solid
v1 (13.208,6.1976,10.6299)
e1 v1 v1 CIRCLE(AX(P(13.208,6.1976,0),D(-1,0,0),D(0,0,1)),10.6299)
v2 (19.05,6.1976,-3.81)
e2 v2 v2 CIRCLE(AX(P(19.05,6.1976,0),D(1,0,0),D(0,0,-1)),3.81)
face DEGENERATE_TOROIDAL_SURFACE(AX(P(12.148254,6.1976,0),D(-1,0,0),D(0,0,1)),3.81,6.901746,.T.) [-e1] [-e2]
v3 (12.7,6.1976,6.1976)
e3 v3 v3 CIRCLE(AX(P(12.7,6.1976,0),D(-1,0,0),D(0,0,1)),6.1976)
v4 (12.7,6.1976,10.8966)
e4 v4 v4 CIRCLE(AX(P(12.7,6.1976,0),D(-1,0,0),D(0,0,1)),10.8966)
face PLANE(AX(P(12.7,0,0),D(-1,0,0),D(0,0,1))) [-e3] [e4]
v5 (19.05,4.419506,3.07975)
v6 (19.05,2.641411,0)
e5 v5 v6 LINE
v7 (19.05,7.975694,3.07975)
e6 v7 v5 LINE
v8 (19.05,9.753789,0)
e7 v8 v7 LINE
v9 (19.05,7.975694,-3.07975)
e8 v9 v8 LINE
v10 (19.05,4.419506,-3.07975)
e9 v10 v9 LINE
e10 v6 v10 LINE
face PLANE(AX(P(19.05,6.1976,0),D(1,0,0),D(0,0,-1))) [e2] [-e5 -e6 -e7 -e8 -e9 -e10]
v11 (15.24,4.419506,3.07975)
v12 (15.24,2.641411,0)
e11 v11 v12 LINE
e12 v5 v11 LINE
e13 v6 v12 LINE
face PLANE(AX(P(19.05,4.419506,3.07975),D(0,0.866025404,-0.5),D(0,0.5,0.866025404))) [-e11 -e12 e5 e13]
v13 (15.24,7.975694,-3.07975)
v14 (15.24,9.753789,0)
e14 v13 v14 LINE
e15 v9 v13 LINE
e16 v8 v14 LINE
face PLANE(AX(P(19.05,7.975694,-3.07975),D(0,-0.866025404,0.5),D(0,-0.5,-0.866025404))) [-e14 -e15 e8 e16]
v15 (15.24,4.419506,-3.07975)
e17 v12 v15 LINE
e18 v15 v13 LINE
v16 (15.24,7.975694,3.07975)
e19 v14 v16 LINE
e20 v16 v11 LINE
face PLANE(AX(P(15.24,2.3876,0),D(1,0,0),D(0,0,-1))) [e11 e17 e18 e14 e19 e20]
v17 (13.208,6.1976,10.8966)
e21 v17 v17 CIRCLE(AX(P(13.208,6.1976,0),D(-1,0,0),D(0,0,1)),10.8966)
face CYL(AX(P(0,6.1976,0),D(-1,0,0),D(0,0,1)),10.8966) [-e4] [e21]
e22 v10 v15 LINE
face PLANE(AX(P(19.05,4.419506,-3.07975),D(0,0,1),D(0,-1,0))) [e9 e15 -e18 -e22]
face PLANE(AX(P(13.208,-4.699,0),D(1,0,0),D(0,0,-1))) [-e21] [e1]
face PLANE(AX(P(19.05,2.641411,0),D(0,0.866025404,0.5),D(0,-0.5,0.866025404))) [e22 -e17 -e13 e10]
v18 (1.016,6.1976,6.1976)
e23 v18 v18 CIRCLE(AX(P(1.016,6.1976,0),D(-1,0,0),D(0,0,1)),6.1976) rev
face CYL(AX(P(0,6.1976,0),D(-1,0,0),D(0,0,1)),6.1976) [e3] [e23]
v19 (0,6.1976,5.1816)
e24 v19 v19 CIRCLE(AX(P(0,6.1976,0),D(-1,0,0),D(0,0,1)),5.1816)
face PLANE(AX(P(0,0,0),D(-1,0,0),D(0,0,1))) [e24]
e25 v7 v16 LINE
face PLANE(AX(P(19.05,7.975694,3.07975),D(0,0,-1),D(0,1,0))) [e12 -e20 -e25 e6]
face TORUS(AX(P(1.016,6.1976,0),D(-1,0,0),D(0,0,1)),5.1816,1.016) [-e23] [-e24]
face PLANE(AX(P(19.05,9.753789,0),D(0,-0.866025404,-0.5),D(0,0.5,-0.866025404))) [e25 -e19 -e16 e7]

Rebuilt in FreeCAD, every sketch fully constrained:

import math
import FreeCAD as App
import Part
import Sketcher

V = App.Vector
Q = App.Units.Quantity


def edges_at(feature, points):
    """Names of the edges that pass closest to the given points."""
    edges = feature.Shape.Edges
    near = lambda p: min(range(len(edges)), key=lambda i: edges[i].distToShape(Part.Vertex(*p))[0])
    return sorted({f"Edge{near(p) + 1}" for p in points})


def add_polygon(sketch, points):
    """Adds a closed chain of lines whose ends are joined by coincident constraints."""
    first, n = sketch.GeometryCount, len(points)
    for a, b in zip(points, points[1:] + points[:1]):
        sketch.addGeometry(Part.LineSegment(App.Vector(*a, 0), App.Vector(*b, 0)), False)
    for i in range(n):
        sketch.addConstraint(Sketcher.Constraint("Coincident", first + i, 2, first + (i + 1) % n, 1))

doc = App.newDocument("Part")
params = doc.addObject("Spreadsheet::Sheet", "Params")
for row, (alias, value) in enumerate([
    ("sketch1_width", "0.5 in"),
    ("sketch1_width2", "0.6 in"),
    ("sketch1_width3", "0.02 in"),
    ("sketch1_width4", "0.15 in"),
    ("sketch1_height", "0.244 in"),
    ("revolution_angle", "360 deg"),
    ("sketch2_diameter", "0.3 in"),
    ("pad1_length", "0.15 in"),
    ("fillet_radius", "0.04 in"),
], start=1):
    params.set(f"A{row}", alias)
    params.set(f"B{row}", "=" + value)
    params.setAlias(f"B{row}", alias)

body = doc.addObject("PartDesign::Body", "Body")

# Sketch on XY plane
sketch1 = body.newObject("Sketcher::SketchObject", "Sketch")
sketch1.AttachmentSupport = (doc.getObject("XY_Plane"), [""])
sketch1.MapMode = "FlatFace"
sketch1.addGeometry([
    Part.LineSegment(V(0, 6.1976, 0), V(0, 0, 0)),  # 0
    Part.LineSegment(V(0, 0, 0), V(12.7, 0, 0)),  # 1
    Part.LineSegment(V(12.7, 0, 0), V(12.7, -4.699, 0)),  # 2
    Part.LineSegment(V(12.7, -4.699, 0), V(13.208, -4.699, 0)),  # 3
    Part.LineSegment(V(13.208, -4.699, 0), V(13.208, -4.4323, 0)),  # 4
    Part.ArcOfCircle(Part.Circle(V(12.148254, 2.3876, 0), V(0, 0, 1), 6.901746), math.radians(-81.167433), math.radians(0)),  # 5
    Part.LineSegment(V(19.05, 2.3876, 0), V(15.24, 2.3876, 0)),  # 6
    Part.LineSegment(V(15.24, 2.3876, 0), V(15.24, 6.1976, 0)),  # 7
    Part.LineSegment(V(15.24, 6.1976, 0), V(0, 6.1976, 0)),  # 8
], False)
sketch1.addGeometry(Part.LineSegment(V(0, 6.1976, 0), V(19.05, 6.1976, 0)), True)  # axis
sketch1.addConstraint([
    Sketcher.Constraint("Coincident", 0, 2, 1, 1),
    Sketcher.Constraint("Coincident", 1, 2, 2, 1),
    Sketcher.Constraint("Coincident", 2, 2, 3, 1),
    Sketcher.Constraint("Coincident", 3, 2, 4, 1),
    Sketcher.Constraint("Coincident", 4, 2, 5, 1),
    Sketcher.Constraint("Coincident", 5, 2, 6, 1),
    Sketcher.Constraint("Coincident", 6, 2, 7, 1),
    Sketcher.Constraint("Coincident", 7, 2, 8, 1),
    Sketcher.Constraint("Coincident", 8, 2, 0, 1),
    Sketcher.Constraint("Vertical", 0),
    Sketcher.Constraint("Horizontal", 1),
    Sketcher.Constraint("Vertical", 2),
    Sketcher.Constraint("Horizontal", 3),
    Sketcher.Constraint("Vertical", 4),
    Sketcher.Constraint("Horizontal", 6),
    Sketcher.Constraint("Vertical", 7),
    Sketcher.Constraint("Horizontal", 8),
    Sketcher.Constraint("Horizontal", 9),
    Sketcher.Constraint("Coincident", 0, 2, -1, 1),
    Sketcher.Constraint("Coincident", 9, 1, 8, 2),
    Sketcher.Constraint("Vertical", 5, 2, 9, 2),
    Sketcher.Constraint("Equal", 6, 7),
    Sketcher.Constraint("DistanceX", 1, 1, 1, 2, Q("0.5 in")),
    Sketcher.Constraint("DistanceX", 8, 2, 8, 1, Q("0.6 in")),
    Sketcher.Constraint("DistanceX", 3, 1, 3, 2, Q("0.02 in")),
    Sketcher.Constraint("DistanceX", 6, 2, 6, 1, Q("0.15 in")),
    Sketcher.Constraint("DistanceY", 0, 2, 0, 1, Q("0.244 in")),
    Sketcher.Constraint("DistanceY", 2, 2, 2, 1, Q("0.185 in")),
    Sketcher.Constraint("DistanceY", 5, 3, 7, 2, Q("0.15 in")),
    Sketcher.Constraint("DistanceY", 4, 1, 4, 2, Q("0.0105 in")),
])
sketch1.setExpression("Constraints[22]", "Params.sketch1_width")
sketch1.setExpression("Constraints[23]", "Params.sketch1_width2")
sketch1.setExpression("Constraints[24]", "Params.sketch1_width3")
sketch1.setExpression("Constraints[25]", "Params.sketch1_width4")
sketch1.setExpression("Constraints[26]", "Params.sketch1_height")
revolution = body.newObject("PartDesign::Revolution", "Revolution")
revolution.Profile = sketch1
revolution.ReferenceAxis = (sketch1, ["Axis0"])
revolution.setExpression("Angle", "Params.revolution_angle")

# Sketch on YZ plane
sketch2 = body.newObject("Sketcher::SketchObject", "Sketch001")
sketch2.AttachmentSupport = (doc.getObject("YZ_Plane"), [""])
sketch2.MapMode = "FlatFace"
sketch2.AttachmentOffset = App.Placement(V(0, 0, 0.75 * 25.4), App.Rotation())
sketch2.addGeometry(Part.Circle(V(6.1976, 0, 0), V(0, 0, 1), 3.81), False)  # 0
add_polygon(sketch2, [(4.419506, -3.07975), (2.641411, 0), (4.419506, 3.07975), (7.975694, 3.07975), (9.753789, 0), (7.975694, -3.07975)])  # lines 1-6
sketch2.addConstraint([
    Sketcher.Constraint("Horizontal", 3),
    Sketcher.Constraint("Horizontal", 6),
    Sketcher.Constraint("Symmetric", 3, 2, 5, 2, -1),
    Sketcher.Constraint("PointOnObject", 0, 3, -1),
    Sketcher.Constraint("PointOnObject", 1, 2, -1),
    Sketcher.Constraint("PointOnObject", 4, 2, -1),
    Sketcher.Constraint("Parallel", 1, 4),
    Sketcher.Constraint("Parallel", 2, 5),
    Sketcher.Constraint("Diameter", 0, Q("0.3 in")),
    Sketcher.Constraint("Angle", 1, Q("120 deg")),
    Sketcher.Constraint("DistanceX", -1, 1, 0, 3, Q("0.244 in")),
    Sketcher.Constraint("DistanceY", 5, 2, 3, 2, Q("0.2425 in")),
    Sketcher.Constraint("DistanceX", 3, 1, 3, 2, Q("3.556189 mm")),
    Sketcher.Constraint("DistanceX", -1, 1, 1, 2, Q("2.641411 mm")),
])
sketch2.setExpression("Constraints[14]", "Params.sketch2_diameter")
pad1 = body.newObject("PartDesign::Pad", "Pad")
pad1.Profile = sketch2
pad1.setExpression("Length", "Params.pad1_length")
pad1.Reversed = True
doc.recompute()

fillet = body.newObject("PartDesign::Fillet", "Fillet")
fillet.Base = (pad1, edges_at(pad1, [(0, 6.198, -6.198)]))
fillet.setExpression("Radius", "Params.fillet_radius")

doc.recompute()
